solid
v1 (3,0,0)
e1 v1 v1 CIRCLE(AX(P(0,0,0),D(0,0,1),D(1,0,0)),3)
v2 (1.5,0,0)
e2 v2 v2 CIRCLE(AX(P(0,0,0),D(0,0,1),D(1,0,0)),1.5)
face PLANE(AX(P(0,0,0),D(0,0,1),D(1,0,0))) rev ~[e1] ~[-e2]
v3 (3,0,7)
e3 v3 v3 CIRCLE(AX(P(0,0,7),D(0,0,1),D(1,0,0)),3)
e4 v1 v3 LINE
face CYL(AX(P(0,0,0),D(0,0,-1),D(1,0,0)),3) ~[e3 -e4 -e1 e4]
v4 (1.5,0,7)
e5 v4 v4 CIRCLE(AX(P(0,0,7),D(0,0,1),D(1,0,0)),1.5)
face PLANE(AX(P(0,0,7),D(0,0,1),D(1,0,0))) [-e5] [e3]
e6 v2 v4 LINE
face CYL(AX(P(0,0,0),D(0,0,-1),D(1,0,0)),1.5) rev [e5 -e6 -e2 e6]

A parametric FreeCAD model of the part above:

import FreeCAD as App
import Part
import Sketcher

V = App.Vector
Q = App.Units.Quantity

doc = App.newDocument("Part")
body = doc.addObject("PartDesign::Body", "Body")

# Sketch on XY plane
sketch1 = doc.addObject("Sketcher::SketchObject", "Sketch")
body.addObject(sketch1)
sketch1.AttachmentSupport = (doc.XY_Plane, [""])
sketch1.MapMode = "FlatFace"
sketch1.addGeometry([
    Part.Circle(V(0, 0, 0), V(0, 0, 1), 3),
    Part.Circle(V(0, 0, 0), V(0, 0, 1), 1.5),
], False)
sketch1.addConstraint([
    Sketcher.Constraint("Coincident", 0, 3, -1, 1),
    Sketcher.Constraint("Coincident", 1, 3, -1, 1),
    Sketcher.Constraint("Diameter", 0, Q("6 mm")),
    Sketcher.Constraint("Diameter", 1, Q("3 mm")),
])
pad1 = doc.addObject("PartDesign::Pad", "Pad")
body.addObject(pad1)
pad1.Profile = sketch1
pad1.Length = 7

doc.recompute()
